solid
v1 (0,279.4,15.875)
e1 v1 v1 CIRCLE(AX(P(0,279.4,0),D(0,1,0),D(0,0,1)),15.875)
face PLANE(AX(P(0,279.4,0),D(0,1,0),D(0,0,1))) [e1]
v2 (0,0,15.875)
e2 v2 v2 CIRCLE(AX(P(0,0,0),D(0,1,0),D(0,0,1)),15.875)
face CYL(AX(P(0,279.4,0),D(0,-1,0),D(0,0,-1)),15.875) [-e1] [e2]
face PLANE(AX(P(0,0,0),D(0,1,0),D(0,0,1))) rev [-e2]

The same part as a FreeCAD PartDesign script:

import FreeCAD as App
import Part
import Sketcher
Q = App.Units.Quantity

doc = App.newDocument("Part")
body = doc.addObject("PartDesign::Body", "Body")

# Sketch on XZ plane
sketch1 = body.newObject("Sketcher::SketchObject", "Sketch")
sketch1.AttachmentSupport = (doc.getObject("XZ_Plane"), [""])
sketch1.MapMode = "FlatFace"
sketch1.addGeometry(Part.Circle(App.Vector(0, 0, 0), App.Vector(0, 0, 1), 15.875), False)
sketch1.addConstraint([
    Sketcher.Constraint("Coincident", 0, 3, -1, 1),
    Sketcher.Constraint("Diameter", 0, Q("1.25 in")),
])
pad1 = body.newObject("PartDesign::Pad", "Pad")
pad1.Profile = sketch1
pad1.Length = Q("11 in")
pad1.Reversed = True

doc.recompute()
